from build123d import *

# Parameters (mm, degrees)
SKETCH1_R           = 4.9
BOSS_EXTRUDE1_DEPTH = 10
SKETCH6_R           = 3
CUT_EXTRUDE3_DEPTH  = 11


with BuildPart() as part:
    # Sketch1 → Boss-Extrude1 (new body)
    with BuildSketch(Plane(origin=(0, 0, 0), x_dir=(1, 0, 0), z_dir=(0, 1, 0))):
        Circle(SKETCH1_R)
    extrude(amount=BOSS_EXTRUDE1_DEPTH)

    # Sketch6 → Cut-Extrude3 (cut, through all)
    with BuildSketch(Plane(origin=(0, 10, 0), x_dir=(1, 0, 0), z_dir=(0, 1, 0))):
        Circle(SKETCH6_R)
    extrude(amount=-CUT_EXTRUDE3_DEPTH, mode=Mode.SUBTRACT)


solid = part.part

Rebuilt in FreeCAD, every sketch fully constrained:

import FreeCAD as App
import Part
import Sketcher
Q = App.Units.Quantity

doc = App.newDocument("Part")
body = doc.addObject("PartDesign::Body", "Body")

# Sketch on XZ plane
sketch1 = body.newObject("Sketcher::SketchObject", "Sketch")
sketch1.AttachmentSupport = (doc.getObject("XZ_Plane"), [""])
sketch1.MapMode = "FlatFace"
sketch1.addGeometry(Part.Circle(App.Vector(0, 0, 0), App.Vector(0, 0, 1), 4.9), False)
sketch1.addConstraint(Sketcher.Constraint("Coincident", 0, 3, -1, 1))
sketch1.addConstraint(Sketcher.Constraint("Diameter", 0, Q("9.8 mm")))
pad1 = body.newObject("PartDesign::Pad", "Pad")
pad1.Profile = sketch1
pad1.Length = 10
pad1.Reversed = True

# Sketch on XZ plane
sketch2 = body.newObject("Sketcher::SketchObject", "Sketch001")
sketch2.AttachmentSupport = (doc.getObject("XZ_Plane"), [""])
sketch2.MapMode = "FlatFace"
sketch2.AttachmentOffset = App.Placement(App.Vector(0, 0, -10), App.Rotation())
sketch2.addGeometry(Part.Circle(App.Vector(0, 0, 0), App.Vector(0, 0, 1), 3), False)
sketch2.addConstraint(Sketcher.Constraint("Coincident", 0, 3, -1, 1))
sketch2.addConstraint(Sketcher.Constraint("Diameter", 0, Q("6 mm")))
pocket1 = body.newObject("PartDesign::Pocket", "Pocket")
pocket1.Profile = sketch2
pocket1.Type = "ThroughAll"
pocket1.Reversed = True

doc.recompute()
